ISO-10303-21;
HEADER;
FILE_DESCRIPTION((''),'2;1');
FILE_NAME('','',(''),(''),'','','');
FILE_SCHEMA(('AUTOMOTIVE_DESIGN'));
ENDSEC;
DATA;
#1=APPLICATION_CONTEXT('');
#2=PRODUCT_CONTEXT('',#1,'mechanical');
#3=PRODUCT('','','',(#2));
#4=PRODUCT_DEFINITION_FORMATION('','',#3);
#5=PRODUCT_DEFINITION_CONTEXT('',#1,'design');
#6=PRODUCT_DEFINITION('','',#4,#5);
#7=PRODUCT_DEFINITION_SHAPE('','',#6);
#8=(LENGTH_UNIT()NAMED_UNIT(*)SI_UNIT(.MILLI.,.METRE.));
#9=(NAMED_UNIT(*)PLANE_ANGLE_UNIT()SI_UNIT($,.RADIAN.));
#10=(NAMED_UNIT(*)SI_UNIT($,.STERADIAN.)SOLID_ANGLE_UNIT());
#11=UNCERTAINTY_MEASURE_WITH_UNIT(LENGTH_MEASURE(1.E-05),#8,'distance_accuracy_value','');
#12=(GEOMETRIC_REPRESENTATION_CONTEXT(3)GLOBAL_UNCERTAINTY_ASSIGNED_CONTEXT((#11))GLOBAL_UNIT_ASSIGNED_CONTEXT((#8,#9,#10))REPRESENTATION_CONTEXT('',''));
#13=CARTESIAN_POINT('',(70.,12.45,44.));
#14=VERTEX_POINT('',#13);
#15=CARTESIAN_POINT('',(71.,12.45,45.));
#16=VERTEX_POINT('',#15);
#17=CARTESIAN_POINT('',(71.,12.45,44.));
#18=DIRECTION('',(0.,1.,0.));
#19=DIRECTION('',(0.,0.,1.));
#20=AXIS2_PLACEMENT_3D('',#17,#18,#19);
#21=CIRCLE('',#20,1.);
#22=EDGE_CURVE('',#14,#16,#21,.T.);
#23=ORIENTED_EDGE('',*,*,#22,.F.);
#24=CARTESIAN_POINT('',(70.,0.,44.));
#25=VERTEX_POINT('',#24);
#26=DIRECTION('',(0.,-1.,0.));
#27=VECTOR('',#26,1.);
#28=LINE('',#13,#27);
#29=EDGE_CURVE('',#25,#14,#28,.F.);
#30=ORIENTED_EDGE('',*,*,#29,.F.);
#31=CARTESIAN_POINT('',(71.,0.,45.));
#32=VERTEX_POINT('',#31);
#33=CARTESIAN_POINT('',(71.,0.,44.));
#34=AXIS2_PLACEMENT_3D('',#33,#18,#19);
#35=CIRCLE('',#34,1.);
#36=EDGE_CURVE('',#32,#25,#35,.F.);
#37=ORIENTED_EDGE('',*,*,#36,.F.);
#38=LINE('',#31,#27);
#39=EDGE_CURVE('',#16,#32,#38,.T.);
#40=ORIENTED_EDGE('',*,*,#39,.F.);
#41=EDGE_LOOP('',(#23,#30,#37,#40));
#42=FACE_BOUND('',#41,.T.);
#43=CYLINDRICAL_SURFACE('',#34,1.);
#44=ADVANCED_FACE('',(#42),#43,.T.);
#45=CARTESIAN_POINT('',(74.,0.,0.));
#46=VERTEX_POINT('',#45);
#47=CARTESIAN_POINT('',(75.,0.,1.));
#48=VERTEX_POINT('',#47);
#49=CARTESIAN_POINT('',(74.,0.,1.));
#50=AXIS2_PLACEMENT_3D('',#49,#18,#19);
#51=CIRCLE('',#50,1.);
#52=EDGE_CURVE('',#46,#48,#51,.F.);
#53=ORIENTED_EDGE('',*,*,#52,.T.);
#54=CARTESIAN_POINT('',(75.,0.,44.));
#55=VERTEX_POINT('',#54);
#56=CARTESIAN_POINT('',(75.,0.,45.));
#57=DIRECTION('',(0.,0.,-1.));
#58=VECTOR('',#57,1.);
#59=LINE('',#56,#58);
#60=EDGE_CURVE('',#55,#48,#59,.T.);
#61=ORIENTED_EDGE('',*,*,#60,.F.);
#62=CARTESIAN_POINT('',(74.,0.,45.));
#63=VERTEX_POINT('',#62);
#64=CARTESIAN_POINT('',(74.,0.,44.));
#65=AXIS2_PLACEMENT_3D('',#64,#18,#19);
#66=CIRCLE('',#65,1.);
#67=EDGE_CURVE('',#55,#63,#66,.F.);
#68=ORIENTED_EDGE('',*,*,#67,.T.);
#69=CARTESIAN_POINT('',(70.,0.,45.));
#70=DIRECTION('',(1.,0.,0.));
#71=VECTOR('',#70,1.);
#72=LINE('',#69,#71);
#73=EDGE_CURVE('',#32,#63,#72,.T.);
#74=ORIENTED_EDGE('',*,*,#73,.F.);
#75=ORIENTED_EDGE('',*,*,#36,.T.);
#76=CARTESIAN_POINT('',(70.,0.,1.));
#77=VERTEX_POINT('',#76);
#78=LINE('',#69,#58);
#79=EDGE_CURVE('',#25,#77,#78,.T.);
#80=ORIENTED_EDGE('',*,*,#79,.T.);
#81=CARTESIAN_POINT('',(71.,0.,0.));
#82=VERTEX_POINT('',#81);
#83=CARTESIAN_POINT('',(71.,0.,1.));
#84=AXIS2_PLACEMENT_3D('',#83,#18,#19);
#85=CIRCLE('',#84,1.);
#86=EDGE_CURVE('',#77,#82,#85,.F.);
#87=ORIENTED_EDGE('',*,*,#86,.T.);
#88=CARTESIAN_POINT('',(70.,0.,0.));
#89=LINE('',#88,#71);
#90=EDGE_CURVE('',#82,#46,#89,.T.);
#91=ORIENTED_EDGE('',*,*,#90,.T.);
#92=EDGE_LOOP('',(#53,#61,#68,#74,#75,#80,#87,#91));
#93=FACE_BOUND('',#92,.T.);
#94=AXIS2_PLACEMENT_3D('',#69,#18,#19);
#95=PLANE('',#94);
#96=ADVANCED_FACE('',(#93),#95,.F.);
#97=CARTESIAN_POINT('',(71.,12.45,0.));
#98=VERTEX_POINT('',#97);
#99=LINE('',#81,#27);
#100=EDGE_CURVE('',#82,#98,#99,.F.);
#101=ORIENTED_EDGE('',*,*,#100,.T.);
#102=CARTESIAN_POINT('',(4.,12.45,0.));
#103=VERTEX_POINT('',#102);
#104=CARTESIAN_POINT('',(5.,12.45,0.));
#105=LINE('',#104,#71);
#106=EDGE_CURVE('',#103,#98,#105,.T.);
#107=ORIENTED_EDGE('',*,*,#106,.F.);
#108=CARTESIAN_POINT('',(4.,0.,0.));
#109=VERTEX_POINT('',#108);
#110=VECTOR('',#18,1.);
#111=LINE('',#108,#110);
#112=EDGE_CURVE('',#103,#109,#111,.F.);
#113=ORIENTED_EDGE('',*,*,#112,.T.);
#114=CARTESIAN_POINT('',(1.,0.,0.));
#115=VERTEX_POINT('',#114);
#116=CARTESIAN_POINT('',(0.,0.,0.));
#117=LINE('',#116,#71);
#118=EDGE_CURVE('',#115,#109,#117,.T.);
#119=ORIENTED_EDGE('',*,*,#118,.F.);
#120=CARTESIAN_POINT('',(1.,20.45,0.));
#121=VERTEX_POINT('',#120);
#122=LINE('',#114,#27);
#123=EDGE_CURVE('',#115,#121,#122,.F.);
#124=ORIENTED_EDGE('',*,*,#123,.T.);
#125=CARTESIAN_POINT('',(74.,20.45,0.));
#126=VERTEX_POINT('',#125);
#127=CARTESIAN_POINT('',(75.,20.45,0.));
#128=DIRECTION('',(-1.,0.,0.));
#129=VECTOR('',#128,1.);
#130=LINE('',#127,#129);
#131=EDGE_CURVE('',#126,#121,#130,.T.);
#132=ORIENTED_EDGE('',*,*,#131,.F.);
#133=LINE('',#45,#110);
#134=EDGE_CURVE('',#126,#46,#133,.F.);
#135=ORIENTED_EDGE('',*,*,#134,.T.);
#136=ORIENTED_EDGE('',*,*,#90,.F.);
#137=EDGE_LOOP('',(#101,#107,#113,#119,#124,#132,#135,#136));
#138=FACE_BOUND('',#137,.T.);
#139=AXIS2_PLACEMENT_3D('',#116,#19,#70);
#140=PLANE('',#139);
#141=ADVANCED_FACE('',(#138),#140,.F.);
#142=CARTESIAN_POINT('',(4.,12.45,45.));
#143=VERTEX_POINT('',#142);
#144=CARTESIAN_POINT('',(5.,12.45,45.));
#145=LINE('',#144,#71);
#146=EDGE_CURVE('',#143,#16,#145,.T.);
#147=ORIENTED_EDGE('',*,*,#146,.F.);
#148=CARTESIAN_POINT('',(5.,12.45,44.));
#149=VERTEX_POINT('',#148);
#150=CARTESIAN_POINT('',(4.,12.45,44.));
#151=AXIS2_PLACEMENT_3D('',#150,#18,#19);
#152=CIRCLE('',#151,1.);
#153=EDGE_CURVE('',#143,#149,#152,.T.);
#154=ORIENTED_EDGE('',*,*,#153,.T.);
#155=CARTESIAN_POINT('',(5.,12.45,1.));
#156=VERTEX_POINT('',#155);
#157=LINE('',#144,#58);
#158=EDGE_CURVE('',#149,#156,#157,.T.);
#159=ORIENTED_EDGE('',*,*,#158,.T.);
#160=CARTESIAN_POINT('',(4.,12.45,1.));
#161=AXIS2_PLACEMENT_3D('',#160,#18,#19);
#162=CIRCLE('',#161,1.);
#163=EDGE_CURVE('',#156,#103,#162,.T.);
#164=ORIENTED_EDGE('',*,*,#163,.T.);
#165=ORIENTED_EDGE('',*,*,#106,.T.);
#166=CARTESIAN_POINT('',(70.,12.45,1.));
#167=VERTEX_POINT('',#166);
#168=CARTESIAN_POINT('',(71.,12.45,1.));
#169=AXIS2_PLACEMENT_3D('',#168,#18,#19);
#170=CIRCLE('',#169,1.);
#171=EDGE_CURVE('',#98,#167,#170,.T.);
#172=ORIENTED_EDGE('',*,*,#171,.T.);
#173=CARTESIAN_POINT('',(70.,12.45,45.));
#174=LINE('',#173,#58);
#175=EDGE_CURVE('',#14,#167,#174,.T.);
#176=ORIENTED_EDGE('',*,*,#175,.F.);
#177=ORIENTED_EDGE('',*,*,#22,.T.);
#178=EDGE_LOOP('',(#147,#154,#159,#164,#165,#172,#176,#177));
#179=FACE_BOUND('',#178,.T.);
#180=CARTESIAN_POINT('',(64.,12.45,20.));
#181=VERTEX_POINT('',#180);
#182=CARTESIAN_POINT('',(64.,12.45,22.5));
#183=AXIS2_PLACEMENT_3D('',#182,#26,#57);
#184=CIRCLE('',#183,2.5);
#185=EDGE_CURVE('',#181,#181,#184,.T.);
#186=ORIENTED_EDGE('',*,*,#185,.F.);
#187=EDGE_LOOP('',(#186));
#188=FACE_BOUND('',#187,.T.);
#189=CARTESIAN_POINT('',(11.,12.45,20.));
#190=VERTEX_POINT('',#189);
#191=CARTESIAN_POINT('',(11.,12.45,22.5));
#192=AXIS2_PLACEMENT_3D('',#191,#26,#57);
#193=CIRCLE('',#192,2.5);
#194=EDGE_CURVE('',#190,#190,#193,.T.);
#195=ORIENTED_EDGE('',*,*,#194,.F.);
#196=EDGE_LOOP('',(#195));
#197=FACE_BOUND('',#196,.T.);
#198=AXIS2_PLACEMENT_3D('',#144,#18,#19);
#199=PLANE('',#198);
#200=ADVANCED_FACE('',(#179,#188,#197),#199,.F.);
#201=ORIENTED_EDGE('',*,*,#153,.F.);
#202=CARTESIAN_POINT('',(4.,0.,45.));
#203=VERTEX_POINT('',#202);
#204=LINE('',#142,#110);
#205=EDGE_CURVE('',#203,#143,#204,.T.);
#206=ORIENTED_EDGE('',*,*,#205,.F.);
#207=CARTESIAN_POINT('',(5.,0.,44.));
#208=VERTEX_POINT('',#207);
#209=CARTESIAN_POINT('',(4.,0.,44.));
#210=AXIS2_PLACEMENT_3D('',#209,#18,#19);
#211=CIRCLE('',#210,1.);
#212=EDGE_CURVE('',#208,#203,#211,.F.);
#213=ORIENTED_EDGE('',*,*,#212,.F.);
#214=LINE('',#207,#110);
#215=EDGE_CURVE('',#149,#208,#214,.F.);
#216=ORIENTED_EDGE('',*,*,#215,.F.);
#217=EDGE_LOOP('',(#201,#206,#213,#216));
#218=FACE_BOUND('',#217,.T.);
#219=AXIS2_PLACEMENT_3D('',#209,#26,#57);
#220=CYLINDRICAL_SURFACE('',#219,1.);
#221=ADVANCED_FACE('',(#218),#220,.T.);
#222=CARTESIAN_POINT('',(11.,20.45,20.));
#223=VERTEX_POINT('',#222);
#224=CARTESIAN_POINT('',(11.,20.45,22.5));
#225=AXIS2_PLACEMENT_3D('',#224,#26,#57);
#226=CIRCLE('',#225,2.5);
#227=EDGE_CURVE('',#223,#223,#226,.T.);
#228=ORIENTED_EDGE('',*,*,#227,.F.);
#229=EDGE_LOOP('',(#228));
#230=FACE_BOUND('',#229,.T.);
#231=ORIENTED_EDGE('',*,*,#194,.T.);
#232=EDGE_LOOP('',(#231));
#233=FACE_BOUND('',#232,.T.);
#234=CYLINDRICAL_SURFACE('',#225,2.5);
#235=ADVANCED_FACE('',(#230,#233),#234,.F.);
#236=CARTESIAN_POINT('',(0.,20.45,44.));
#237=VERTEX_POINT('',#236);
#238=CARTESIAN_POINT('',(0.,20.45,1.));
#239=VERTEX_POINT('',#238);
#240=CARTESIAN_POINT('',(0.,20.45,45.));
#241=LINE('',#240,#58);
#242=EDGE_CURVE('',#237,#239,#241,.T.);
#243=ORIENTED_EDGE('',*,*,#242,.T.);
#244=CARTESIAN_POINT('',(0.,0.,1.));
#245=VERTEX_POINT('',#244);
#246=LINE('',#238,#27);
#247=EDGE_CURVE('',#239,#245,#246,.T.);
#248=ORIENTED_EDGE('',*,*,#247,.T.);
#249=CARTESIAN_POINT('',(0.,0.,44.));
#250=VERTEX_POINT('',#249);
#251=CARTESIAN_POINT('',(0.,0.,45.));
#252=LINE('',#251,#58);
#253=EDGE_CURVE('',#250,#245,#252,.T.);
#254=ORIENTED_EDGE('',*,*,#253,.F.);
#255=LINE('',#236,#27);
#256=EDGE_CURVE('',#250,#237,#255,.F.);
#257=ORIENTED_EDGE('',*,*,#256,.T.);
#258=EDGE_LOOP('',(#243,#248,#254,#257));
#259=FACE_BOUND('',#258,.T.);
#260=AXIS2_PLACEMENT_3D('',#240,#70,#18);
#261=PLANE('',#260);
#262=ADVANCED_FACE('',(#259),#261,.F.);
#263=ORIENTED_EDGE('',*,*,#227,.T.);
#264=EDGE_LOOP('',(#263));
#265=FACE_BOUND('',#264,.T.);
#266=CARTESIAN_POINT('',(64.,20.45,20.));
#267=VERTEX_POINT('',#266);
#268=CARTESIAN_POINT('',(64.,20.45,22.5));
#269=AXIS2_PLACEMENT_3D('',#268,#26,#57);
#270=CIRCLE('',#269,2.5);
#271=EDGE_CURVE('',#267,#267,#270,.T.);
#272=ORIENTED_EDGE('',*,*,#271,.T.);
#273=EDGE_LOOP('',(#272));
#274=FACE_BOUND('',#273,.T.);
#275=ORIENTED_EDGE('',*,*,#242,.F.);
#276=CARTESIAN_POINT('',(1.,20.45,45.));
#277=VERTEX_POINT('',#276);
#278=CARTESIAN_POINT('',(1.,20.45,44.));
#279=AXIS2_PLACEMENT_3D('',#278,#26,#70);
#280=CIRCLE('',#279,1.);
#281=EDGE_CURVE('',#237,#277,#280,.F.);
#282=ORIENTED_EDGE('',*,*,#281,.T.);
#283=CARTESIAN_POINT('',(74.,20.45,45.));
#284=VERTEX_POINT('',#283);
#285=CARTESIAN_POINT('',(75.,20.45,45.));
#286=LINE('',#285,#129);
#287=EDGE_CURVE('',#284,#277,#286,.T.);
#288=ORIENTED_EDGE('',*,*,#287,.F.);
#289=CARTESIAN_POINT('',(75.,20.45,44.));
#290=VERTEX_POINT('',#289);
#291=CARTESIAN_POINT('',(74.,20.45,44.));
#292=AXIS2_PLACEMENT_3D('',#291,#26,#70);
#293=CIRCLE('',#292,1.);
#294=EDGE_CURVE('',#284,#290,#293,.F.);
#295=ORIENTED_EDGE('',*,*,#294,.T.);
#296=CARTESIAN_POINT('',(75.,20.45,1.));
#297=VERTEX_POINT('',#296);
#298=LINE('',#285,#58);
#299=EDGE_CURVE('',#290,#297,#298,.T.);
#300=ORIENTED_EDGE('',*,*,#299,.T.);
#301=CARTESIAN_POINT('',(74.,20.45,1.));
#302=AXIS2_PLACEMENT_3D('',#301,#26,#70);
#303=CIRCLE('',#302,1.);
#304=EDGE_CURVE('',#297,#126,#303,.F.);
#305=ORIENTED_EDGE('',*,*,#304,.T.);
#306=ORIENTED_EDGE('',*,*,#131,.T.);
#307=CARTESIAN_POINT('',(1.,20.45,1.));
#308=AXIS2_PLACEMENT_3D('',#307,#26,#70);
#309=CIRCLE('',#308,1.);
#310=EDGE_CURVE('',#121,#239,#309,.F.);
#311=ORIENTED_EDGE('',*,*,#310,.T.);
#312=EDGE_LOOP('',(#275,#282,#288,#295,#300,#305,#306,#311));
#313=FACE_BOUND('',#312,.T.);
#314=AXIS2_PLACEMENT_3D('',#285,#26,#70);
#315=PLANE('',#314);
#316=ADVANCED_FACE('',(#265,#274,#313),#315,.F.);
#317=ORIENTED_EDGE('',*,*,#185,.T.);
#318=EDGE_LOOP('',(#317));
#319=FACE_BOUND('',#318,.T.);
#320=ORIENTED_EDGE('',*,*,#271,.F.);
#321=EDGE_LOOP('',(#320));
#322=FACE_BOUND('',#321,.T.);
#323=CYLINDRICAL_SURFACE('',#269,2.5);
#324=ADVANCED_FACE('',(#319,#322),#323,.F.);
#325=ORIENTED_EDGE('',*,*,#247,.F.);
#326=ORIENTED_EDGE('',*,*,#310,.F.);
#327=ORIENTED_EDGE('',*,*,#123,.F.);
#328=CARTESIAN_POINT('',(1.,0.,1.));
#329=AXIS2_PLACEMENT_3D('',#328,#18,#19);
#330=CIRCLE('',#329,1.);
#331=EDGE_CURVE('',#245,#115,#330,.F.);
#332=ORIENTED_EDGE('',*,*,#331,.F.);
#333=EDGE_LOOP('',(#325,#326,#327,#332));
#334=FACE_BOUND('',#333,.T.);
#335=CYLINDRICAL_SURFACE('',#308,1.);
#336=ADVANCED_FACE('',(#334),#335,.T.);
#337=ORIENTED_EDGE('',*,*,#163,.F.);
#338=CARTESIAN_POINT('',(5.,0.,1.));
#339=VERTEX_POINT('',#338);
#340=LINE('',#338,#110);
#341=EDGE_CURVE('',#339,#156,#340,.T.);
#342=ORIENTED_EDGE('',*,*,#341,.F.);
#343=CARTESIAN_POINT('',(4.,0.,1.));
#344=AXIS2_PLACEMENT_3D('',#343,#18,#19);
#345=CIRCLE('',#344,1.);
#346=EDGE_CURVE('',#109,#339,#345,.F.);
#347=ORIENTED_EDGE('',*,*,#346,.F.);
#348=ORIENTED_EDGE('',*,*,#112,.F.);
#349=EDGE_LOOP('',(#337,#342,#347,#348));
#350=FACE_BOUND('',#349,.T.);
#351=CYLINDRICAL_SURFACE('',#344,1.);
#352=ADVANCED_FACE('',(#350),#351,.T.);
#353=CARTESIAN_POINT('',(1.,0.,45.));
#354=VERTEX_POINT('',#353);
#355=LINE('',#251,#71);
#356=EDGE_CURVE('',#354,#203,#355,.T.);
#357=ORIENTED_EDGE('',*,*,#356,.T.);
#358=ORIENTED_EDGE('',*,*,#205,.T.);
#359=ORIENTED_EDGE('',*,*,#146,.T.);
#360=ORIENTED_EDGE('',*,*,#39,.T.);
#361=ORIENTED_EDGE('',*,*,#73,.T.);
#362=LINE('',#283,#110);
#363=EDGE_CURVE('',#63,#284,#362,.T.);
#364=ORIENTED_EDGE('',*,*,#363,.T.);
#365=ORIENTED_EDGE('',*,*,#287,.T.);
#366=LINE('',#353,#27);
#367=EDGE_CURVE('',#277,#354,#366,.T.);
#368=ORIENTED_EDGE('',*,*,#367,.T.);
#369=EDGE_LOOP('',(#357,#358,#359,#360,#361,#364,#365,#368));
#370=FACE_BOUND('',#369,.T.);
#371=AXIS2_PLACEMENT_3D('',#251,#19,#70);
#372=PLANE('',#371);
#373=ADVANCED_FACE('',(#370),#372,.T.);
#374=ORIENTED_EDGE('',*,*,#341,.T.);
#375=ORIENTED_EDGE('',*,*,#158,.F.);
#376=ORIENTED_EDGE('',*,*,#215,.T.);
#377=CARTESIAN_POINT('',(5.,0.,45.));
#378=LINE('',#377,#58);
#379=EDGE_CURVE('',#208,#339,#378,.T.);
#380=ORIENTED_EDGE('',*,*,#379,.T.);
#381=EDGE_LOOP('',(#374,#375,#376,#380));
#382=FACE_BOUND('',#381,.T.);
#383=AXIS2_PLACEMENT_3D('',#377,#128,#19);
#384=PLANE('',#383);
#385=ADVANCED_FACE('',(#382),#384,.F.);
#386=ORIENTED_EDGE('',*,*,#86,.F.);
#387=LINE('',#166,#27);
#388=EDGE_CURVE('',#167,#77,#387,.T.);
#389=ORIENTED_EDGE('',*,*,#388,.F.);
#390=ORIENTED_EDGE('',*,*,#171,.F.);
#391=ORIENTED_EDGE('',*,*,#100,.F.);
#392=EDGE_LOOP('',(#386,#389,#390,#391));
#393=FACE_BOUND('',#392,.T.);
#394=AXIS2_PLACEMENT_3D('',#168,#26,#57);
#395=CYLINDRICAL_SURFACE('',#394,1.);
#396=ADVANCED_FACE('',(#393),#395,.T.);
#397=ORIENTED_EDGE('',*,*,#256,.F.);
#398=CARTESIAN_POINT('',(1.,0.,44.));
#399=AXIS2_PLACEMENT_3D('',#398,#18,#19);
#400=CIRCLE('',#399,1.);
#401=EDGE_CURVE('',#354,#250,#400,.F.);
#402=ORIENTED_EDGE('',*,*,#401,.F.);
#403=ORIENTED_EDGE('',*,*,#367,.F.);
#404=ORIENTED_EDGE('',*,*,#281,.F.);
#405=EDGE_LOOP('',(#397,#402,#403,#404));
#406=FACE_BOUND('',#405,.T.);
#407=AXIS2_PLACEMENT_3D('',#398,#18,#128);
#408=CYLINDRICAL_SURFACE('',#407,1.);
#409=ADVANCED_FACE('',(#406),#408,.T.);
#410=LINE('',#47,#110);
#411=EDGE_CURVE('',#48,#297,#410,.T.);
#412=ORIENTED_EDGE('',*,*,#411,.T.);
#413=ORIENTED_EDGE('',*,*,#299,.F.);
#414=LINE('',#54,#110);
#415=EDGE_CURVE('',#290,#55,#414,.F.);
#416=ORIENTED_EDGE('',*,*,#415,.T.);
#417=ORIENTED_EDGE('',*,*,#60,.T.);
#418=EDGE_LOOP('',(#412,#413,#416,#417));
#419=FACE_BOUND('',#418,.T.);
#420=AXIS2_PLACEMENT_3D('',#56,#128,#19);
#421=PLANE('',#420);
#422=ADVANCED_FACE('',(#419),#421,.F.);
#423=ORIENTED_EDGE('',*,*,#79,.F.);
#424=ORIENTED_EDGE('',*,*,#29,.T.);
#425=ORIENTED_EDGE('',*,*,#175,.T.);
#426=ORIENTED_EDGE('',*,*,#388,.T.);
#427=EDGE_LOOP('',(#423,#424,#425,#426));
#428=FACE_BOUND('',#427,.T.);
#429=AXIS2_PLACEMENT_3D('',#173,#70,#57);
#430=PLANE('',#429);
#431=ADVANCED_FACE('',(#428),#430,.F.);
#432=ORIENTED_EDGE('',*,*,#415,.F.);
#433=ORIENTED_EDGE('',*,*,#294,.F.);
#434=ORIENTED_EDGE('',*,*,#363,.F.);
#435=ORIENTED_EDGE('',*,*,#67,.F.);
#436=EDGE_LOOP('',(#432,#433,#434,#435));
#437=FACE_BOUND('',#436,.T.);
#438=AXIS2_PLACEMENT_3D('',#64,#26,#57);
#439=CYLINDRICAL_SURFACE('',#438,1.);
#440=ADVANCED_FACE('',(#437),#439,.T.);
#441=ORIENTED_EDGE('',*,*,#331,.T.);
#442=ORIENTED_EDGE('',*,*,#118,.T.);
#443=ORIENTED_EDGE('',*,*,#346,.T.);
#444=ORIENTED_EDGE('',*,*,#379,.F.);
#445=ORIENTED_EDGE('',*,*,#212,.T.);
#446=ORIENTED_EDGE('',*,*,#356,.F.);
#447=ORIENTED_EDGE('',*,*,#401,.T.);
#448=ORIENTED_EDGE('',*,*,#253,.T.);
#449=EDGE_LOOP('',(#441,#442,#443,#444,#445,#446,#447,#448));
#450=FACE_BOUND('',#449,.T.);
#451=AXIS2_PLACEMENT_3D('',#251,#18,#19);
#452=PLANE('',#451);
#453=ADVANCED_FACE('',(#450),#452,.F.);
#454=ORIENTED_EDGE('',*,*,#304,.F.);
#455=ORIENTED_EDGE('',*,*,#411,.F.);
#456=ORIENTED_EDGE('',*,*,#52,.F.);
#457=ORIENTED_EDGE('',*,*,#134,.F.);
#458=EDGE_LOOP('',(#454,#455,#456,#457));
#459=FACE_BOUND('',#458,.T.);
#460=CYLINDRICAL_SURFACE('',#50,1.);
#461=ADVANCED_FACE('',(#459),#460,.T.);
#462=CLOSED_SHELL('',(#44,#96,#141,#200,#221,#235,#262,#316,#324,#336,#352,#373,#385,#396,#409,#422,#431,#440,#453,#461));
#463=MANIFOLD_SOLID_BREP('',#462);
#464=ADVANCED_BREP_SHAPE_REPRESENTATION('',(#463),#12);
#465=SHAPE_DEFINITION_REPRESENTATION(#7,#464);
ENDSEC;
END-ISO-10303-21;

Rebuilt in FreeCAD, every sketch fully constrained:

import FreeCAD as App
import Part
import Sketcher
from FreeCAD import Vector


def edges_at(feature, points):
    """Names of the edges that pass closest to the given points."""
    edges = feature.Shape.Edges
    near = lambda p: min(range(len(edges)), key=lambda i: edges[i].distToShape(Part.Vertex(*p))[0])
    return sorted({f"Edge{near(p) + 1}" for p in points})


def add_polygon(sketch, points):
    """Adds a closed chain of lines whose ends are joined by coincident constraints."""
    first, n = sketch.GeometryCount, len(points)
    for a, b in zip(points, points[1:] + points[:1]):
        sketch.addGeometry(Part.LineSegment(App.Vector(*a, 0), App.Vector(*b, 0)), False)
    for i in range(n):
        sketch.addConstraint(Sketcher.Constraint("Coincident", first + i, 2, first + (i + 1) % n, 1))

doc = App.newDocument("Part")
body = doc.addObject("PartDesign::Body", "Body")

# Sketch on XY plane
sketch1 = body.newObject("Sketcher::SketchObject", "Sketch")
sketch1.AttachmentSupport = (doc.getObject("XY_Plane"), [""])
sketch1.MapMode = "FlatFace"
add_polygon(sketch1, [(0, 0), (5, 0), (5, 12), (70, 12), (70, 0), (75, 0), (75, 20), (0, 20)])  # lines 0-7
sketch1.addConstraint([
    Sketcher.Constraint("Horizontal", 0),
    Sketcher.Constraint("Vertical", 1),
    Sketcher.Constraint("Horizontal", 2),
    Sketcher.Constraint("Vertical", 3),
    Sketcher.Constraint("Horizontal", 4),
    Sketcher.Constraint("Vertical", 5),
    Sketcher.Constraint("Horizontal", 6),
    Sketcher.Constraint("Vertical", 7),
    Sketcher.Constraint("Coincident", 7, 2, -1, 1),
    Sketcher.Constraint("PointOnObject", 3, 2, -1),
    Sketcher.Constraint("Equal", 0, 4),
    Sketcher.Constraint("DistanceX", 0, 1, 0, 2, 5.0),
    Sketcher.Constraint("DistanceX", 2, 1, 2, 2, 65.0),
    Sketcher.Constraint("DistanceY", 2, 2, 5, 2, 8.0),
    Sketcher.Constraint("DistanceY", 1, 1, 1, 2, 12.45),
])
pad1 = body.newObject("PartDesign::Pad", "Pad")
pad1.Profile = sketch1
pad1.Length = 45

# Sketch on XZ plane
sketch2 = body.newObject("Sketcher::SketchObject", "Sketch001")
sketch2.AttachmentSupport = (doc.getObject("XZ_Plane"), [""])
sketch2.MapMode = "FlatFace"
sketch2.AttachmentOffset = App.Placement(Vector(0, 0, -12.45), App.Rotation())
sketch2.addGeometry([
    Part.Circle(Vector(11, 22.5, 0), Vector(0, 0, 1), 2.5),
    Part.Circle(Vector(64, 22.5, 0), Vector(0, 0, 1), 2.5),
], False)
sketch2.addConstraint([
    Sketcher.Constraint("Equal", 0, 1),
    Sketcher.Constraint("Horizontal", 0, 3, 1, 3),
    Sketcher.Constraint("Diameter", 0, 5.0),
    Sketcher.Constraint("DistanceX", -1, 1, 0, 3, 11.0),
    Sketcher.Constraint("DistanceX", -1, 1, 1, 3, 64.0),
    Sketcher.Constraint("DistanceY", -1, 1, 0, 3, 22.5),
])
pocket1 = body.newObject("PartDesign::Pocket", "Pocket")
pocket1.Profile = sketch2
pocket1.Type = "ThroughAll"
doc.recompute()

fillet = body.newObject("PartDesign::Fillet", "Fillet")
fillet.Base = (pocket1, edges_at(pocket1, [
    (5, 6.225, 0),
    (0, 10.225, 0),
    (5, 6.225, 45),
    (70, 6.225, 45),
    (75, 10.225, 45),
    (0, 10.225, 45),
    (75, 10.225, 0),
    (70, 6.225, 0),
]))
fillet.Radius = 1

doc.recompute()
